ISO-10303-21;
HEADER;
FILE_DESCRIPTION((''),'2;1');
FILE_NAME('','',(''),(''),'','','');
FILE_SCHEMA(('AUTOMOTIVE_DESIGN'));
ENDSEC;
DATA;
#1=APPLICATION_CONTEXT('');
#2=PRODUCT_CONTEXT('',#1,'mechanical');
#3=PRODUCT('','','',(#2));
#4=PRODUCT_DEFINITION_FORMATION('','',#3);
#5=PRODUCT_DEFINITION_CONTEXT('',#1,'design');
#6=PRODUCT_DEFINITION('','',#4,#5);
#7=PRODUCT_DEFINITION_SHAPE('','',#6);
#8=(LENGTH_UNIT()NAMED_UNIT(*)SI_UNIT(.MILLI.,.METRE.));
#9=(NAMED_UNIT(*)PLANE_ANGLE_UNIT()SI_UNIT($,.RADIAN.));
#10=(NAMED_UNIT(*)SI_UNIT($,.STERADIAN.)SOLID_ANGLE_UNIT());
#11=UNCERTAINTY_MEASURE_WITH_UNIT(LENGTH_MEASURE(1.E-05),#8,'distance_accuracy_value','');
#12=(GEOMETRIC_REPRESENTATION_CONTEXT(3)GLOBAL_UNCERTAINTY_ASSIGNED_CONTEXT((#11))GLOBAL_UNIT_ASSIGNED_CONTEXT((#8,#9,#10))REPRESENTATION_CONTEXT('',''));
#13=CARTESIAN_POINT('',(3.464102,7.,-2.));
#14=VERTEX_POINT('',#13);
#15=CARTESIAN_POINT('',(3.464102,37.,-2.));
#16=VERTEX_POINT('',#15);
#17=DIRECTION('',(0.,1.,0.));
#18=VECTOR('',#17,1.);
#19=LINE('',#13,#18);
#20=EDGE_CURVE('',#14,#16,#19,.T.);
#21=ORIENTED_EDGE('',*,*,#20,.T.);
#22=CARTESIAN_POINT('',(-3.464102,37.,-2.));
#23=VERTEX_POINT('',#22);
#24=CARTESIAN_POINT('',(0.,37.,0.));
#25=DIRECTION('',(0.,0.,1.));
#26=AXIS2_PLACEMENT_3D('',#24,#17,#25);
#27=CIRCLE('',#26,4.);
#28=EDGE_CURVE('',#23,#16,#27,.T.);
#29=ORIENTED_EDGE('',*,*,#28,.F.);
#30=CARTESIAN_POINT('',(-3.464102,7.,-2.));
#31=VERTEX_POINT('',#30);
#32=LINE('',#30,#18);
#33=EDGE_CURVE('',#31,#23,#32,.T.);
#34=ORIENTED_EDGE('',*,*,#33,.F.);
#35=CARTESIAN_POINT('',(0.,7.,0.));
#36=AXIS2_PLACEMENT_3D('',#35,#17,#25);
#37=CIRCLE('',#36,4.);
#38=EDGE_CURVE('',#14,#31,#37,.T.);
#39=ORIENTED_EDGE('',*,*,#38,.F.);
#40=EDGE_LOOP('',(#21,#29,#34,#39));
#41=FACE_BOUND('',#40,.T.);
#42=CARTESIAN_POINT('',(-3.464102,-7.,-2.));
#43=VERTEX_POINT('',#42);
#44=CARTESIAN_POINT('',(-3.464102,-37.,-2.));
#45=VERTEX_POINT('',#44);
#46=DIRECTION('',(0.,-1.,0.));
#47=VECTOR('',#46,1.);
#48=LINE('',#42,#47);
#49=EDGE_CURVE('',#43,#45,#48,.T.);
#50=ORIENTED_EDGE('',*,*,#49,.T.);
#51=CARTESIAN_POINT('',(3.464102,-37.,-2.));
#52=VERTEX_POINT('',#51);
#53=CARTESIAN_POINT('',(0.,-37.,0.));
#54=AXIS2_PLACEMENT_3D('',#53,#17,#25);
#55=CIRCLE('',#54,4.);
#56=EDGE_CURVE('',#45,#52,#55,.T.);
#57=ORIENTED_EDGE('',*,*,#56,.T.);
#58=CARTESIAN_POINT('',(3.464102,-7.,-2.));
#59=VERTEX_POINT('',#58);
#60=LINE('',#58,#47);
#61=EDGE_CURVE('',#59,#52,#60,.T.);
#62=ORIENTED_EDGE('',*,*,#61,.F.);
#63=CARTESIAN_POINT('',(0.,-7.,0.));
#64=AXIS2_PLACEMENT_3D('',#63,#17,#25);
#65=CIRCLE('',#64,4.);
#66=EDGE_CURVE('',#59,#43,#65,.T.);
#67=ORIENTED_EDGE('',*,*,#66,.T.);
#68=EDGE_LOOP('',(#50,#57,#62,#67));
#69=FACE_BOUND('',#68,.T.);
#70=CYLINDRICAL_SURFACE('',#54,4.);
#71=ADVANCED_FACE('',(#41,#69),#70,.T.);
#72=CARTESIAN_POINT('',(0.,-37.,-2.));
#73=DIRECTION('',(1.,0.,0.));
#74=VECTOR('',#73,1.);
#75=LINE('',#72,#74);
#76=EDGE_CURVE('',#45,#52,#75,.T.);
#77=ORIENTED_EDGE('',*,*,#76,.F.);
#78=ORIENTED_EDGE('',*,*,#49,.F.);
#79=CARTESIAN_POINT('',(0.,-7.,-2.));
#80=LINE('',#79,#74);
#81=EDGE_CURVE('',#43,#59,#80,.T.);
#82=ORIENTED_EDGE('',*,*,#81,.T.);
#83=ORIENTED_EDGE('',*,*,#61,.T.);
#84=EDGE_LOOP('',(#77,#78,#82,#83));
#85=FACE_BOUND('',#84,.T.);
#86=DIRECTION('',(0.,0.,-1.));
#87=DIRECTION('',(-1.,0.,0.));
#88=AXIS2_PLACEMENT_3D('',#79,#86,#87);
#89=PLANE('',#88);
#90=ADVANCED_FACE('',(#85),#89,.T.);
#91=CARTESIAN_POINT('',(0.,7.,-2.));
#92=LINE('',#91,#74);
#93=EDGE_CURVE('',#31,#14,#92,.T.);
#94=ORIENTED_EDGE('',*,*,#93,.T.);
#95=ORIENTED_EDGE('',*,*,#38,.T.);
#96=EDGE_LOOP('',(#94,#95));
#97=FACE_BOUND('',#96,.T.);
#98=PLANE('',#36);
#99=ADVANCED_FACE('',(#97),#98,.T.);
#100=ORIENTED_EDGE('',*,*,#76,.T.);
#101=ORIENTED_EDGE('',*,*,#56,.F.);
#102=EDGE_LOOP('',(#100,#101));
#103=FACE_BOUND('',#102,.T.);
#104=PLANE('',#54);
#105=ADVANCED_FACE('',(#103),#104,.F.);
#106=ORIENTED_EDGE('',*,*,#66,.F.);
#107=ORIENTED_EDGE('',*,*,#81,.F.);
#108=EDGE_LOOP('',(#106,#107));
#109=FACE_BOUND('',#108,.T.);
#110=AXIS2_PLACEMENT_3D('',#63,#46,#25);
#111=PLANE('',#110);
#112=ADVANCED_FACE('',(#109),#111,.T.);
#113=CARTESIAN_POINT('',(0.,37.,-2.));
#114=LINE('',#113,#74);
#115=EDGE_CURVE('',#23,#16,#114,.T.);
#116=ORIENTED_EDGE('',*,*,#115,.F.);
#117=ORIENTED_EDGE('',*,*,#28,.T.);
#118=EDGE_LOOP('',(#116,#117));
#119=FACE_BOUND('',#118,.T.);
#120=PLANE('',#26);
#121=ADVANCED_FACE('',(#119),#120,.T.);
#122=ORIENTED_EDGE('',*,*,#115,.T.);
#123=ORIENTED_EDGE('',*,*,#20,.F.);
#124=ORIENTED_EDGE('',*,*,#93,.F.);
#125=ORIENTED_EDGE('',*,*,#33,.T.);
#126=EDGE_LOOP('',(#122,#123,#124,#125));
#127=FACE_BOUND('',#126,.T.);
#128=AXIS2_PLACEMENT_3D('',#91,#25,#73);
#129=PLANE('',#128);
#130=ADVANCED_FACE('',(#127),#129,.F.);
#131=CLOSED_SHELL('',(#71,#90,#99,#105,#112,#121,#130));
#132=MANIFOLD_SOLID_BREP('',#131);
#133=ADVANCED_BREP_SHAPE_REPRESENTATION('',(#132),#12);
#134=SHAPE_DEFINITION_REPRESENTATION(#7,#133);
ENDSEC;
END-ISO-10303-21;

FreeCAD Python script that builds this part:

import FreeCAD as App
import Part
import Sketcher


def add_polygon(sketch, points):
    """Adds a closed chain of lines whose ends are joined by coincident constraints."""
    first, n = sketch.GeometryCount, len(points)
    for a, b in zip(points, points[1:] + points[:1]):
        sketch.addGeometry(Part.LineSegment(App.Vector(*a, 0), App.Vector(*b, 0)), False)
    for i in range(n):
        sketch.addConstraint(Sketcher.Constraint("Coincident", first + i, 2, first + (i + 1) % n, 1))

doc = App.newDocument("Part")
body = doc.addObject("PartDesign::Body", "Body")

# Sketch on XZ plane
sketch1 = body.newObject("Sketcher::SketchObject", "Sketch")
sketch1.AttachmentSupport = (doc.getObject("XZ_Plane"), [""])
sketch1.MapMode = "FlatFace"
sketch1.addGeometry(Part.Circle(App.Vector(0, 0, 0), App.Vector(0, 0, 1), 4), False)
sketch1.addConstraint([
    Sketcher.Constraint("Coincident", 0, 3, -1, 1),
    Sketcher.Constraint("Diameter", 0, 8.0),
])
pad1 = body.newObject("PartDesign::Pad", "Pad")
pad1.Profile = sketch1
pad1.Type = "TwoLengths"
pad1.Length = 37
pad1.Length2 = 37
pad1.Reversed = True

# Sketch on XZ plane
sketch2 = body.newObject("Sketcher::SketchObject", "Sketch001")
sketch2.AttachmentSupport = (doc.getObject("XZ_Plane"), [""])
sketch2.MapMode = "FlatFace"
sketch2.AttachmentOffset = App.Placement(App.Vector(0, 0, -37), App.Rotation())
add_polygon(sketch2, [(-33, -2), (33, -2), (33, -60), (-33, -60)])  # lines 0-3
sketch2.addConstraint([
    Sketcher.Constraint("Horizontal", 0),
    Sketcher.Constraint("Vertical", 1),
    Sketcher.Constraint("Horizontal", 2),
    Sketcher.Constraint("Vertical", 3),
    Sketcher.Constraint("DistanceY", 0, 2, -1, 1, 2.0),
    Sketcher.Constraint("DistanceX", 0, 1, 0, 2, 65.234926),
    Sketcher.Constraint("DistanceY", 1, 2, 1, 1, 58.306723),
    Sketcher.Constraint("DistanceX", -1, 1, 0, 2, 32.617463),
])
pocket1 = body.newObject("PartDesign::Pocket", "Pocket")
pocket1.Profile = sketch2
pocket1.Length = 30
pocket1.Reversed = True
doc.recompute()

mirrored = body.newObject("PartDesign::Mirrored", "Mirrored")
mirrored.Originals = [pocket1]
mirrored.MirrorPlane = (doc.getObject("XZ_Plane"), [""])
body.Tip = mirrored

doc.recompute()
